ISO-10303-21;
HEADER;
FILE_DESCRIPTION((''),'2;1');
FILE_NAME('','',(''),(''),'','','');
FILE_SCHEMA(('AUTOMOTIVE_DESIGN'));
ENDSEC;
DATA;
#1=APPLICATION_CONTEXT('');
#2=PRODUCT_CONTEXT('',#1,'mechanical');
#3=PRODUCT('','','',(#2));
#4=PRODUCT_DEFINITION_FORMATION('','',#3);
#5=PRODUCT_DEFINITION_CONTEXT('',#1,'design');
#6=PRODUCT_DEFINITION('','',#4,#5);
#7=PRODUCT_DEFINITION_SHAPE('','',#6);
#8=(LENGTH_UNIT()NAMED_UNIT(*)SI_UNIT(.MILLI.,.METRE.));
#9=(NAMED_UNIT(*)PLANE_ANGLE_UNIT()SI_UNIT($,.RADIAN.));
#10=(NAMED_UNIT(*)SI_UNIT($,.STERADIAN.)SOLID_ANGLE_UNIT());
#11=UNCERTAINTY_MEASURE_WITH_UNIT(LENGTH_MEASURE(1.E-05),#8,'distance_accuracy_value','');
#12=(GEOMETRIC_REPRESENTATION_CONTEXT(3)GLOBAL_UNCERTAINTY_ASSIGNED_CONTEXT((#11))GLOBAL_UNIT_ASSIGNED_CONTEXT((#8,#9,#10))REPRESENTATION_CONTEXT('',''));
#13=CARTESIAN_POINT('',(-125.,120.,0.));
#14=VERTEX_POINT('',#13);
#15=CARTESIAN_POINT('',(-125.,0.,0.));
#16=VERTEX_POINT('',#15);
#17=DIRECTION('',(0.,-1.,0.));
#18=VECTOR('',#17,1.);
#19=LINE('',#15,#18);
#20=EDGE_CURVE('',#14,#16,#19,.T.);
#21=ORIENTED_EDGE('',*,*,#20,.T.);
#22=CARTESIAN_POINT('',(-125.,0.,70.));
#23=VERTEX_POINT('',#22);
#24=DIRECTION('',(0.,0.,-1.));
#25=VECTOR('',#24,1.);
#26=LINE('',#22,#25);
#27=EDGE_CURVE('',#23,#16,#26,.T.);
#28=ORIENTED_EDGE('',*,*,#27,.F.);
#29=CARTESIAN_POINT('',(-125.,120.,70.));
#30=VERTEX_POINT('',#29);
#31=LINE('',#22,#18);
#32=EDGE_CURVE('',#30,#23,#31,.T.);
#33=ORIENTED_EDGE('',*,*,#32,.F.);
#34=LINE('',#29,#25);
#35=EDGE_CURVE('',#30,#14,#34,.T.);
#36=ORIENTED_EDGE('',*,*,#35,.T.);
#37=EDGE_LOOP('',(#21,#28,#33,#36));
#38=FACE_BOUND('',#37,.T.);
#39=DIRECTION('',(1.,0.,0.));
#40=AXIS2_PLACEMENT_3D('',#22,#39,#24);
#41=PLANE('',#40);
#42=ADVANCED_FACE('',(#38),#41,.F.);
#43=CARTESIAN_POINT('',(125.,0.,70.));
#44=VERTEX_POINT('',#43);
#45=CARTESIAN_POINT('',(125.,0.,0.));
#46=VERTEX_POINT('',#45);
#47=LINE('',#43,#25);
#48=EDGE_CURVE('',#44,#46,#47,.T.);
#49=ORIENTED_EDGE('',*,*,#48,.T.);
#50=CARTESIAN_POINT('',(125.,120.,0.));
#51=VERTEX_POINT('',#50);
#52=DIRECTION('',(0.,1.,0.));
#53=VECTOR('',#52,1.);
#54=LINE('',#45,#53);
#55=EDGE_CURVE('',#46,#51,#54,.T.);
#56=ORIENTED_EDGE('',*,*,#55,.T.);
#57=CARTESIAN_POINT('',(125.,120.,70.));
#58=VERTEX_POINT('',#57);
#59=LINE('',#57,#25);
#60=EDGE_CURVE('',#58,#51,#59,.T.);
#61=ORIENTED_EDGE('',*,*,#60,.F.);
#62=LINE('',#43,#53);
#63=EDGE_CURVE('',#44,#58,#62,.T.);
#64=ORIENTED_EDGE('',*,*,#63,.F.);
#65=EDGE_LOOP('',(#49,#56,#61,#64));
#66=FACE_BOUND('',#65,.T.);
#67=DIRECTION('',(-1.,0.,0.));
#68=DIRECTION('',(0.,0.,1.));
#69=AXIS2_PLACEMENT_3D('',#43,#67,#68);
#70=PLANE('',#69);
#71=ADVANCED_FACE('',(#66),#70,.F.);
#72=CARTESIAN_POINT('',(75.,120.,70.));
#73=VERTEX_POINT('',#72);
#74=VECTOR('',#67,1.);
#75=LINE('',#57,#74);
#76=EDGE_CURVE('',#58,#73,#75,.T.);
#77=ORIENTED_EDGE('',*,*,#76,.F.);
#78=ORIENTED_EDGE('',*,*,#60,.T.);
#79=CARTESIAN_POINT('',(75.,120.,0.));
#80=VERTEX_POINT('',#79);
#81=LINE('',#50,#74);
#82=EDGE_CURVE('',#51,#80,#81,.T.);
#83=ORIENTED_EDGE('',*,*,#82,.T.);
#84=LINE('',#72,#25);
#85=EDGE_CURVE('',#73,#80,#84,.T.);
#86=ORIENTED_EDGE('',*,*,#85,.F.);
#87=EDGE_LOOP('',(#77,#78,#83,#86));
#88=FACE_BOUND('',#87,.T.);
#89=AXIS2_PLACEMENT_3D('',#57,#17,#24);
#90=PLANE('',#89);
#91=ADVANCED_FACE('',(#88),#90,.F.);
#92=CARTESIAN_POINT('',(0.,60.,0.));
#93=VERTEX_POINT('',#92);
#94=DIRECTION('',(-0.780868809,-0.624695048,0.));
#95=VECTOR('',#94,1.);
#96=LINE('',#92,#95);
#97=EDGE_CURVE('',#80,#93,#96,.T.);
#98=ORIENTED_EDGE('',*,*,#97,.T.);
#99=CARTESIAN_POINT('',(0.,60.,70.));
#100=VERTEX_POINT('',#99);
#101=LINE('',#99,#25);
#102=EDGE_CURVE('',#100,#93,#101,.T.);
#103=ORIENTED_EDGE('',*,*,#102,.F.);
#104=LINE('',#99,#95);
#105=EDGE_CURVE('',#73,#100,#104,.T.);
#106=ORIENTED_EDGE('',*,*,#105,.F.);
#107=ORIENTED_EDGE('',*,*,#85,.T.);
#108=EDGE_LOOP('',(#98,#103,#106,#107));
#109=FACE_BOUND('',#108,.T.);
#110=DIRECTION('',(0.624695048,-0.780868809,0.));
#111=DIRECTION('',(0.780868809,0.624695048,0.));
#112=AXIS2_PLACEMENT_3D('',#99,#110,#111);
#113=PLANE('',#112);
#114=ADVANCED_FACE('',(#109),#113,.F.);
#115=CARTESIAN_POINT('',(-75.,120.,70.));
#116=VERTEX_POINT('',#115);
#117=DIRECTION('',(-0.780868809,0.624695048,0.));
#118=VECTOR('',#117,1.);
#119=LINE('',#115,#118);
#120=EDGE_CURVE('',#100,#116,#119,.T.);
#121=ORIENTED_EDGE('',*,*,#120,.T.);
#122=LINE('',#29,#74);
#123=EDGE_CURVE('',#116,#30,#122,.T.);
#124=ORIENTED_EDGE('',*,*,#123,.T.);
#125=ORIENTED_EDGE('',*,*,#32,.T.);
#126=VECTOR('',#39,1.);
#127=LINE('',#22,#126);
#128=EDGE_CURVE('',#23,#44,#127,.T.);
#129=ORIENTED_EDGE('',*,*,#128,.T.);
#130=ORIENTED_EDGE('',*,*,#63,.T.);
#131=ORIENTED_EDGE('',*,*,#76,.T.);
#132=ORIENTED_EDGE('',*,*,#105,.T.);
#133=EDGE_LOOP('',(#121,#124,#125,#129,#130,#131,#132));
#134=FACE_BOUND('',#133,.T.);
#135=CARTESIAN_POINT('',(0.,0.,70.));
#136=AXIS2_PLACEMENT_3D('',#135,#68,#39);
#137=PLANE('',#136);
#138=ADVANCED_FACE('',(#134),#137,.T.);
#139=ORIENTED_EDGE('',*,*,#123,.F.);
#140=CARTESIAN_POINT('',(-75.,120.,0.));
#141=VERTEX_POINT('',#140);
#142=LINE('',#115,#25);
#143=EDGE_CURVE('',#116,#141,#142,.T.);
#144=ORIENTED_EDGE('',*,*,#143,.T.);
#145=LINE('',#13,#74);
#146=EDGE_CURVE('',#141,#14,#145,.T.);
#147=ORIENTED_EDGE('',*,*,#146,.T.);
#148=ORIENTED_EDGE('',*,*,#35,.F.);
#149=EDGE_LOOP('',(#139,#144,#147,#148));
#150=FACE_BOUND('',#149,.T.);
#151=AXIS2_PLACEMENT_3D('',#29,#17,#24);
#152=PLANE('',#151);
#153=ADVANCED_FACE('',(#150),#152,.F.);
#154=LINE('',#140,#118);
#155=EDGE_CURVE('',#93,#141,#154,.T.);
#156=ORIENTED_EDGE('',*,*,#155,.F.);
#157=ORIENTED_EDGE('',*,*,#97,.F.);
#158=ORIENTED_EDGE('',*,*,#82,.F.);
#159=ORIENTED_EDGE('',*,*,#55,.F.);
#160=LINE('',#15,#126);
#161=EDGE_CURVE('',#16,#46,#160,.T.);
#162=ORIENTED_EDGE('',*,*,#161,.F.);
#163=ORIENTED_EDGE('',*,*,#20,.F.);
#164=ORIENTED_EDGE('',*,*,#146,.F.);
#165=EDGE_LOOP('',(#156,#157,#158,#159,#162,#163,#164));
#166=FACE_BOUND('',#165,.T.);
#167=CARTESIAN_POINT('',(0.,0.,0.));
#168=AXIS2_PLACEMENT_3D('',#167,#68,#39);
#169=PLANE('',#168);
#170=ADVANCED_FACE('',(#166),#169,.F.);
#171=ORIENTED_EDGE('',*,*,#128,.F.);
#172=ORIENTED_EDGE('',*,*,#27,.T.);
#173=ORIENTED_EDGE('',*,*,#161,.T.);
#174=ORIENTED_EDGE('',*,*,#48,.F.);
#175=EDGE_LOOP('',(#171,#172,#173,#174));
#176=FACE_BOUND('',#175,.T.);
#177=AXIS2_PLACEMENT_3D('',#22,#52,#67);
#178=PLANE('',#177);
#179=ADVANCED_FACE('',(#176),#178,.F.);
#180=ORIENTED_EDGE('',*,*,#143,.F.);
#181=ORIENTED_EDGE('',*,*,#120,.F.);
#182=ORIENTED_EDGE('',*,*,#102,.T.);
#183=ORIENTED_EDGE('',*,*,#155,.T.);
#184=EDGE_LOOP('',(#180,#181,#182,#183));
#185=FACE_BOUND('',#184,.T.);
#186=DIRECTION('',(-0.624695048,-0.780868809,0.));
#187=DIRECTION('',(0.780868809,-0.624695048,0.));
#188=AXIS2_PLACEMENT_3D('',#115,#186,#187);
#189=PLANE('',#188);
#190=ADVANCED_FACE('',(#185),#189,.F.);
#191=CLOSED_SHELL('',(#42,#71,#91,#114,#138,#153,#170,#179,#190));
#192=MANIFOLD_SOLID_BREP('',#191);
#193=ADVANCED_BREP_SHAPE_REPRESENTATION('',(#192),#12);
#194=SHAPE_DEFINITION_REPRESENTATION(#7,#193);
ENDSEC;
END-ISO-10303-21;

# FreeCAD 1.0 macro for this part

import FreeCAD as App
import Part
import Sketcher

V = App.Vector
Q = App.Units.Quantity


def add_polygon(sketch, points):
    """Adds a closed chain of lines whose ends are joined by coincident constraints."""
    first, n = sketch.GeometryCount, len(points)
    for a, b in zip(points, points[1:] + points[:1]):
        sketch.addGeometry(Part.LineSegment(App.Vector(*a, 0), App.Vector(*b, 0)), False)
    for i in range(n):
        sketch.addConstraint(Sketcher.Constraint("Coincident", first + i, 2, first + (i + 1) % n, 1))

doc = App.newDocument("Part")
params = doc.addObject("Spreadsheet::Sheet", "Params")
for row, (alias, value) in enumerate([
    ("sketch1_width", "250 mm"),
    ("sketch1_width2", "50 mm"),
    ("sketch1_height", "120 mm"),
    ("pad1_length", "70 mm"),
], start=1):
    params.set(f"A{row}", alias)
    params.set(f"B{row}", "=" + value)
    params.setAlias(f"B{row}", alias)

body = doc.addObject("PartDesign::Body", "Body")

sketch1 = body.newObject("Sketcher::SketchObject", "Sketch")
sketch1.AttachmentSupport = (doc.getObject("XY_Plane"), [""])
sketch1.MapMode = "FlatFace"
add_polygon(sketch1, [(-125, 0), (125, 0), (125, 120), (75, 120), (0, 60), (-75, 120), (-125, 120)])
sketch1.addConstraint(Sketcher.Constraint("Horizontal", 0))
sketch1.addConstraint(Sketcher.Constraint("Vertical", 1))
sketch1.addConstraint(Sketcher.Constraint("Horizontal", 2))
sketch1.addConstraint(Sketcher.Constraint("Horizontal", 5))
sketch1.addConstraint(Sketcher.Constraint("Vertical", 6))
sketch1.addConstraint(Sketcher.Constraint("Symmetric", 0, 2, 6, 2, -1, 1))
sketch1.addConstraint(Sketcher.Constraint("Symmetric", 2, 2, 4, 2, -2))
sketch1.addConstraint(Sketcher.Constraint("PointOnObject", 3, 2, -2))
sketch1.addConstraint(Sketcher.Constraint("DistanceX", 0, 1, 0, 2, Q("250 mm")))
sketch1.addConstraint(Sketcher.Constraint("DistanceX", 2, 2, 2, 1, Q("50 mm")))
sketch1.addConstraint(Sketcher.Constraint("DistanceY", 1, 1, 1, 2, Q("120 mm")))
sketch1.addConstraint(Sketcher.Constraint("DistanceY", -1, 1, 3, 2, Q("60 mm")))
sketch1.setExpression("Constraints[15]", "Params.sketch1_width")
sketch1.setExpression("Constraints[16]", "Params.sketch1_width2")
sketch1.setExpression("Constraints[17]", "Params.sketch1_height")
pad1 = body.newObject("PartDesign::Pad", "Pad")
pad1.Profile = sketch1
pad1.setExpression("Length", "Params.pad1_length")

doc.recompute()
